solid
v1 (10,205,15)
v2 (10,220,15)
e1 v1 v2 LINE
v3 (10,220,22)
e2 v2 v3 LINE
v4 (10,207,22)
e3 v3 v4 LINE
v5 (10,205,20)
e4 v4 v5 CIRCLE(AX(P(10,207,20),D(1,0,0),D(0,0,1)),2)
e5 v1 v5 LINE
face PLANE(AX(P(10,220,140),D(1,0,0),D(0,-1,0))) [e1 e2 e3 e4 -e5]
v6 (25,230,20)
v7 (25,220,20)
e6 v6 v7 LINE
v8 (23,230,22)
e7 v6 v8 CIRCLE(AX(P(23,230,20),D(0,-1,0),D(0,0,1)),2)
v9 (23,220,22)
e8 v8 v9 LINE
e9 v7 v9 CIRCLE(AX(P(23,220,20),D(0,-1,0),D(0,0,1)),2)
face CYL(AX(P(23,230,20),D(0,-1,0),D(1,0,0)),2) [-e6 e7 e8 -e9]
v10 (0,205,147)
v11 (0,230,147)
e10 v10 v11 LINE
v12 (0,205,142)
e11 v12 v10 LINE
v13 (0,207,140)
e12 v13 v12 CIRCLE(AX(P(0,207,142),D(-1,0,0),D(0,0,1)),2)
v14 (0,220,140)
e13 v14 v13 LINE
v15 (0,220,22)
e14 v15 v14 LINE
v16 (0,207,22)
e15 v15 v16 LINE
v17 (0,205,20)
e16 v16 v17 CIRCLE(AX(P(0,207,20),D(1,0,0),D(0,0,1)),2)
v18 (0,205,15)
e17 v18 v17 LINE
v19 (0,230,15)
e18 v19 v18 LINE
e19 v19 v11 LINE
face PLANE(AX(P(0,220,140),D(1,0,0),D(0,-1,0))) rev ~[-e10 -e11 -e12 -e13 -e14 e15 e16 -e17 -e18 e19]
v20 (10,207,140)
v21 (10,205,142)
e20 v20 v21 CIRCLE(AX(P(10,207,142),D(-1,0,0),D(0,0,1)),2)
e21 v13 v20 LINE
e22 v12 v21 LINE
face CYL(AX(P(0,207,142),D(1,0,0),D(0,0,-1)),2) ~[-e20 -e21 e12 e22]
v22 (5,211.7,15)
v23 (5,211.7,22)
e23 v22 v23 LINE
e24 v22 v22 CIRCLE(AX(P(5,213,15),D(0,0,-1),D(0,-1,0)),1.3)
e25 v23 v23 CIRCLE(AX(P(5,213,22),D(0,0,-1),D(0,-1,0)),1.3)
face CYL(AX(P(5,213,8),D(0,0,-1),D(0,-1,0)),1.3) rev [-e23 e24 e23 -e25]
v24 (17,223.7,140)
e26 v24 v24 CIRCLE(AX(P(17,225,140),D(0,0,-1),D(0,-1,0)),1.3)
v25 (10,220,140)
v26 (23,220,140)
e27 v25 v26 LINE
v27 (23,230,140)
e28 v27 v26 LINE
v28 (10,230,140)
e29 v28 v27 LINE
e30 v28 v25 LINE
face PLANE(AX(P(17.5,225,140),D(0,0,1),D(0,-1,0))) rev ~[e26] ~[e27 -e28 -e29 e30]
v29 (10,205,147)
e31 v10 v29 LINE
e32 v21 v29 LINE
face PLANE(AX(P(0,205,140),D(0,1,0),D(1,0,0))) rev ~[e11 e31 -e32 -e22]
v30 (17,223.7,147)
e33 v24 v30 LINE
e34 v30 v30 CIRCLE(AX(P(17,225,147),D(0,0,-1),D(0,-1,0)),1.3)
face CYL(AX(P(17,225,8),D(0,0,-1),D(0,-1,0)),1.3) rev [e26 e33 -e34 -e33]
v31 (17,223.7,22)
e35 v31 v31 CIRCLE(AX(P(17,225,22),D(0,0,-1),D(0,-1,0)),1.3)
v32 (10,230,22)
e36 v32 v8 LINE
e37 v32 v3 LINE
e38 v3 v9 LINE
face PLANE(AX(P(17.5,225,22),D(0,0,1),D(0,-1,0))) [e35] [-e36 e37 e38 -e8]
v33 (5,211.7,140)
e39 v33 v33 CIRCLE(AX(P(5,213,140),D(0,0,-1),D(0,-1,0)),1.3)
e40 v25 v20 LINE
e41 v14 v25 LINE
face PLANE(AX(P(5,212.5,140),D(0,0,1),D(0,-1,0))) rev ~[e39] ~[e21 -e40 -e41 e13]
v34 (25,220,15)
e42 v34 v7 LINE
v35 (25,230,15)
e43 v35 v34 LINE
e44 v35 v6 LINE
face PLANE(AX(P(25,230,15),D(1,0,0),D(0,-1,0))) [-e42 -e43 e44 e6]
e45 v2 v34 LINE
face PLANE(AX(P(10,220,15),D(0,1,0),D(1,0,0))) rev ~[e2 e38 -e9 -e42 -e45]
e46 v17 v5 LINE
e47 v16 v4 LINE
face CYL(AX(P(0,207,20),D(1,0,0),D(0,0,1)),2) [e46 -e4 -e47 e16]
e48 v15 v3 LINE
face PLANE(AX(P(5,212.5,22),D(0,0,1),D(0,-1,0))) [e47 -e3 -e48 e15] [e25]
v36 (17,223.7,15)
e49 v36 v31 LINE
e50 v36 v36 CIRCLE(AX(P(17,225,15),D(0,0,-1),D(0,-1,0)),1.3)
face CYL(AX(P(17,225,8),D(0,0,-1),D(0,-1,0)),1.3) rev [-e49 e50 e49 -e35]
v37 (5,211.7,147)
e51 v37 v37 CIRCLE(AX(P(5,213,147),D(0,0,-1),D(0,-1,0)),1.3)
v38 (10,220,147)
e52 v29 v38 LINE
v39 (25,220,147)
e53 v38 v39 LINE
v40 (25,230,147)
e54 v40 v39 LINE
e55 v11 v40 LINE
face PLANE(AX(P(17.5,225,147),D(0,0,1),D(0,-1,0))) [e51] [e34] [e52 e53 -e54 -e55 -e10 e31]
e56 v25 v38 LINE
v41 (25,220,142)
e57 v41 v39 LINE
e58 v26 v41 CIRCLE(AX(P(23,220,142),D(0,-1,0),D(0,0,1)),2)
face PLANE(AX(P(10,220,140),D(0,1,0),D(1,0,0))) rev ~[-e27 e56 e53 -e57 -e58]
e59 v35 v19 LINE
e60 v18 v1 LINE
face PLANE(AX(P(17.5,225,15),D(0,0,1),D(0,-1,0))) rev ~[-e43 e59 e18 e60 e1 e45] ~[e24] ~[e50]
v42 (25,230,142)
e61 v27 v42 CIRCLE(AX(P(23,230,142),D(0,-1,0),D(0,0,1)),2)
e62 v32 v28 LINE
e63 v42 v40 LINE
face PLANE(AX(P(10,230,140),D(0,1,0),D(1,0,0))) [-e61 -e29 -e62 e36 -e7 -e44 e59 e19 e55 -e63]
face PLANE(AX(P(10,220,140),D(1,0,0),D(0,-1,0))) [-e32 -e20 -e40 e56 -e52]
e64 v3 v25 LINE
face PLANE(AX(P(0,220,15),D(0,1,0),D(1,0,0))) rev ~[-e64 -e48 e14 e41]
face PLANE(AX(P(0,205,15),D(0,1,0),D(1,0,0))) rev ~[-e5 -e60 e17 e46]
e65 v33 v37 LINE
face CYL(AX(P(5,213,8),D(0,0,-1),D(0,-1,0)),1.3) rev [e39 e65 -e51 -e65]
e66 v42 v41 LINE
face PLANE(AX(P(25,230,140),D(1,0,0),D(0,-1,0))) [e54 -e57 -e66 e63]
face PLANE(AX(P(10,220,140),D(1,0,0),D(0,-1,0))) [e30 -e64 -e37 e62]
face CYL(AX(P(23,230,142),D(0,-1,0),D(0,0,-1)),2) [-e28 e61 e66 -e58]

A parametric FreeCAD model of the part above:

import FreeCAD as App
import Part
import Sketcher
Q = App.Units.Quantity


def edges_at(feature, points):
    """Names of the edges that pass closest to the given points."""
    edges = feature.Shape.Edges
    near = lambda p: min(range(len(edges)), key=lambda i: edges[i].distToShape(Part.Vertex(*p))[0])
    return sorted({f"Edge{near(p) + 1}" for p in points})

doc = App.newDocument("Part")
body = doc.addObject("PartDesign::Body", "Body")

# Sketch on XY plane
sketch1 = doc.addObject("Sketcher::SketchObject", "Sketch")
body.addObject(sketch1)
sketch1.AttachmentSupport = (doc.XY_Plane, [""])
sketch1.MapMode = "FlatFace"
sketch1.AttachmentOffset = App.Placement(App.Vector(0, 0, 8), App.Rotation())
sketch1.addGeometry(Part.Circle(App.Vector(5, 17, 0), App.Vector(0, 0, 1), 1.3), False)
sketch1.addConstraint(Sketcher.Constraint("Diameter", 0, Q("2.6 mm")))
sketch1.addConstraint(Sketcher.Constraint("DistanceX", -1, 1, 0, 3, Q("5 mm")))
sketch1.addConstraint(Sketcher.Constraint("DistanceY", -1, 1, 0, 3, Q("17 mm")))
pad1 = doc.addObject("PartDesign::Pad", "Pad")
body.addObject(pad1)
pad1.Profile = sketch1
pad1.Length = 146
body2 = doc.addObject("PartDesign::Body", "Body001")

# Sketch on XY plane
sketch2 = doc.addObject("Sketcher::SketchObject", "Sketch001")
body2.addObject(sketch2)
sketch2.AttachmentSupport = (doc.getObject("XY_Plane001"), [""])
sketch2.MapMode = "FlatFace"
sketch2.AttachmentOffset = App.Placement(App.Vector(0, 0, 8), App.Rotation())
sketch2.addGeometry(Part.Circle(App.Vector(17, 5, 0), App.Vector(0, 0, 1), 1.3), False)
sketch2.addConstraint(Sketcher.Constraint("Diameter", 0, Q("2.6 mm")))
sketch2.addConstraint(Sketcher.Constraint("DistanceX", -1, 1, 0, 3, Q("17 mm")))
sketch2.addConstraint(Sketcher.Constraint("DistanceY", -1, 1, 0, 3, Q("5 mm")))
pad2 = doc.addObject("PartDesign::Pad", "Pad001")
body2.addObject(pad2)
pad2.Profile = sketch2
pad2.Length = 146
body3 = doc.addObject("PartDesign::Body", "Body002")

# Sketch on XY plane
sketch3 = doc.addObject("Sketcher::SketchObject", "Sketch002")
body3.addObject(sketch3)
sketch3.AttachmentSupport = (doc.getObject("XY_Plane002"), [""])
sketch3.MapMode = "FlatFace"
sketch3.AttachmentOffset = App.Placement(App.Vector(0, 0, 15), App.Rotation())
sketch3.addGeometry(Part.LineSegment(App.Vector(0, 10, 0), App.Vector(0, 0, 0)), False)
sketch3.addGeometry(Part.LineSegment(App.Vector(0, 0, 0), App.Vector(10, 0, 0)), False)
sketch3.addGeometry(Part.LineSegment(App.Vector(10, 0, 0), App.Vector(10, 10, 0)), False)
sketch3.addGeometry(Part.LineSegment(App.Vector(10, 10, 0), App.Vector(0, 10, 0)), False)
sketch3.addConstraint(Sketcher.Constraint("Coincident", 0, 2, 1, 1))
sketch3.addConstraint(Sketcher.Constraint("Coincident", 1, 2, 2, 1))
sketch3.addConstraint(Sketcher.Constraint("Coincident", 2, 2, 3, 1))
sketch3.addConstraint(Sketcher.Constraint("Coincident", 3, 2, 0, 1))
sketch3.addConstraint(Sketcher.Constraint("Vertical", 0))
sketch3.addConstraint(Sketcher.Constraint("Horizontal", 1))
sketch3.addConstraint(Sketcher.Constraint("Vertical", 2))
sketch3.addConstraint(Sketcher.Constraint("Horizontal", 3))
sketch3.addConstraint(Sketcher.Constraint("Coincident", 0, 2, -1, 1))
sketch3.addConstraint(Sketcher.Constraint("Equal", 3, 0))
sketch3.addConstraint(Sketcher.Constraint("DistanceX", 1, 1, 1, 2, Q("10 mm")))
pad3 = doc.addObject("PartDesign::Pad", "Pad002")
body3.addObject(pad3)
pad3.Profile = sketch3
pad3.Length = 132
body4 = doc.addObject("PartDesign::Body", "Body003")

# Sketch on XY plane
sketch4 = doc.addObject("Sketcher::SketchObject", "Sketch003")
body4.addObject(sketch4)
sketch4.AttachmentSupport = (doc.getObject("XY_Plane003"), [""])
sketch4.MapMode = "FlatFace"
sketch4.AttachmentOffset = App.Placement(App.Vector(0, 0, 140), App.Rotation())
sketch4.addGeometry(Part.LineSegment(App.Vector(10, 10, 0), App.Vector(10, 0, 0)), False)
sketch4.addGeometry(Part.LineSegment(App.Vector(10, 0, 0), App.Vector(25, 0, 0)), False)
sketch4.addGeometry(Part.LineSegment(App.Vector(25, 0, 0), App.Vector(25, 10, 0)), False)
sketch4.addGeometry(Part.LineSegment(App.Vector(25, 10, 0), App.Vector(10, 10, 0)), False)
sketch4.addConstraint(Sketcher.Constraint("Coincident", 0, 2, 1, 1))
sketch4.addConstraint(Sketcher.Constraint("Coincident", 1, 2, 2, 1))
sketch4.addConstraint(Sketcher.Constraint("Coincident", 2, 2, 3, 1))
sketch4.addConstraint(Sketcher.Constraint("Coincident", 3, 2, 0, 1))
sketch4.addConstraint(Sketcher.Constraint("Vertical", 0))
sketch4.addConstraint(Sketcher.Constraint("Horizontal", 1))
sketch4.addConstraint(Sketcher.Constraint("Vertical", 2))
sketch4.addConstraint(Sketcher.Constraint("Horizontal", 3))
sketch4.addConstraint(Sketcher.Constraint("PointOnObject", 0, 2, -1))
sketch4.addConstraint(Sketcher.Constraint("DistanceX", 1, 1, 1, 2, Q("15 mm")))
sketch4.addConstraint(Sketcher.Constraint("DistanceY", 0, 2, 0, 1, Q("10 mm")))
sketch4.addConstraint(Sketcher.Constraint("DistanceX", -1, 1, 0, 2, Q("10 mm")))
pad4 = doc.addObject("PartDesign::Pad", "Pad003")
body4.addObject(pad4)
pad4.Profile = sketch4
pad4.Length = 7
body5 = doc.addObject("PartDesign::Body", "Body004")

# Sketch on XY plane
sketch5 = doc.addObject("Sketcher::SketchObject", "Sketch004")
body5.addObject(sketch5)
sketch5.AttachmentSupport = (doc.getObject("XY_Plane004"), [""])
sketch5.MapMode = "FlatFace"
sketch5.AttachmentOffset = App.Placement(App.Vector(0, 0, 15), App.Rotation())
sketch5.addGeometry(Part.LineSegment(App.Vector(0, 25, 0), App.Vector(0, 10, 0)), False)
sketch5.addGeometry(Part.LineSegment(App.Vector(0, 10, 0), App.Vector(10, 10, 0)), False)
sketch5.addGeometry(Part.LineSegment(App.Vector(10, 10, 0), App.Vector(10, 25, 0)), False)
sketch5.addGeometry(Part.LineSegment(App.Vector(10, 25, 0), App.Vector(0, 25, 0)), False)
sketch5.addConstraint(Sketcher.Constraint("Coincident", 0, 2, 1, 1))
sketch5.addConstraint(Sketcher.Constraint("Coincident", 1, 2, 2, 1))
sketch5.addConstraint(Sketcher.Constraint("Coincident", 2, 2, 3, 1))
sketch5.addConstraint(Sketcher.Constraint("Coincident", 3, 2, 0, 1))
sketch5.addConstraint(Sketcher.Constraint("Vertical", 0))
sketch5.addConstraint(Sketcher.Constraint("Horizontal", 1))
sketch5.addConstraint(Sketcher.Constraint("Vertical", 2))
sketch5.addConstraint(Sketcher.Constraint("Horizontal", 3))
sketch5.addConstraint(Sketcher.Constraint("PointOnObject", 0, 2, -2))
sketch5.addConstraint(Sketcher.Constraint("DistanceX", 1, 1, 1, 2, Q("10 mm")))
sketch5.addConstraint(Sketcher.Constraint("DistanceY", 0, 2, 0, 1, Q("15 mm")))
sketch5.addConstraint(Sketcher.Constraint("DistanceY", -1, 1, 0, 2, Q("10 mm")))
pad5 = doc.addObject("PartDesign::Pad", "Pad004")
body5.addObject(pad5)
pad5.Profile = sketch5
pad5.Length = 7
body6 = doc.addObject("PartDesign::Body", "Body005")

# Sketch on XY plane
sketch6 = doc.addObject("Sketcher::SketchObject", "Sketch005")
body6.addObject(sketch6)
sketch6.AttachmentSupport = (doc.getObject("XY_Plane005"), [""])
sketch6.MapMode = "FlatFace"
sketch6.AttachmentOffset = App.Placement(App.Vector(0, 0, 140), App.Rotation())
sketch6.addGeometry(Part.LineSegment(App.Vector(0, 25, 0), App.Vector(0, 10, 0)), False)
sketch6.addGeometry(Part.LineSegment(App.Vector(0, 10, 0), App.Vector(10, 10, 0)), False)
sketch6.addGeometry(Part.LineSegment(App.Vector(10, 10, 0), App.Vector(10, 25, 0)), False)
sketch6.addGeometry(Part.LineSegment(App.Vector(10, 25, 0), App.Vector(0, 25, 0)), False)
sketch6.addConstraint(Sketcher.Constraint("Coincident", 0, 2, 1, 1))
sketch6.addConstraint(Sketcher.Constraint("Coincident", 1, 2, 2, 1))
sketch6.addConstraint(Sketcher.Constraint("Coincident", 2, 2, 3, 1))
sketch6.addConstraint(Sketcher.Constraint("Coincident", 3, 2, 0, 1))
sketch6.addConstraint(Sketcher.Constraint("Vertical", 0))
sketch6.addConstraint(Sketcher.Constraint("Horizontal", 1))
sketch6.addConstraint(Sketcher.Constraint("Vertical", 2))
sketch6.addConstraint(Sketcher.Constraint("Horizontal", 3))
sketch6.addConstraint(Sketcher.Constraint("PointOnObject", 0, 2, -2))
sketch6.addConstraint(Sketcher.Constraint("DistanceX", 1, 1, 1, 2, Q("10 mm")))
sketch6.addConstraint(Sketcher.Constraint("DistanceY", 0, 2, 0, 1, Q("15 mm")))
sketch6.addConstraint(Sketcher.Constraint("DistanceY", -1, 1, 0, 2, Q("10 mm")))
pad6 = doc.addObject("PartDesign::Pad", "Pad005")
body6.addObject(pad6)
pad6.Profile = sketch6
pad6.Length = 7
body7 = doc.addObject("PartDesign::Body", "Body006")

# Sketch on XY plane
sketch7 = doc.addObject("Sketcher::SketchObject", "Sketch006")
body7.addObject(sketch7)
sketch7.AttachmentSupport = (doc.getObject("XY_Plane006"), [""])
sketch7.MapMode = "FlatFace"
sketch7.AttachmentOffset = App.Placement(App.Vector(0, 0, 15), App.Rotation())
sketch7.addGeometry(Part.LineSegment(App.Vector(10, 10, 0), App.Vector(10, 0, 0)), False)
sketch7.addGeometry(Part.LineSegment(App.Vector(10, 0, 0), App.Vector(25, 0, 0)), False)
sketch7.addGeometry(Part.LineSegment(App.Vector(25, 0, 0), App.Vector(25, 10, 0)), False)
sketch7.addGeometry(Part.LineSegment(App.Vector(25, 10, 0), App.Vector(10, 10, 0)), False)
sketch7.addConstraint(Sketcher.Constraint("Coincident", 0, 2, 1, 1))
sketch7.addConstraint(Sketcher.Constraint("Coincident", 1, 2, 2, 1))
sketch7.addConstraint(Sketcher.Constraint("Coincident", 2, 2, 3, 1))
sketch7.addConstraint(Sketcher.Constraint("Coincident", 3, 2, 0, 1))
sketch7.addConstraint(Sketcher.Constraint("Vertical", 0))
sketch7.addConstraint(Sketcher.Constraint("Horizontal", 1))
sketch7.addConstraint(Sketcher.Constraint("Vertical", 2))
sketch7.addConstraint(Sketcher.Constraint("Horizontal", 3))
sketch7.addConstraint(Sketcher.Constraint("PointOnObject", 0, 2, -1))
sketch7.addConstraint(Sketcher.Constraint("DistanceX", 1, 1, 1, 2, Q("15 mm")))
sketch7.addConstraint(Sketcher.Constraint("DistanceY", 0, 2, 0, 1, Q("10 mm")))
sketch7.addConstraint(Sketcher.Constraint("DistanceX", -1, 1, 0, 2, Q("10 mm")))
pad7 = doc.addObject("PartDesign::Pad", "Pad006")
body7.addObject(pad7)
pad7.Profile = sketch7
pad7.Length = 7
doc.recompute()

boolean = doc.addObject("PartDesign::Boolean", "Boolean")
body7.addObject(boolean)
boolean.Type = "Fuse"
boolean.addObjects([body3])
doc.recompute()

boolean2 = doc.addObject("PartDesign::Boolean", "Boolean001")
body7.addObject(boolean2)
boolean2.Type = "Fuse"
boolean2.addObjects([body4])
doc.recompute()

boolean3 = doc.addObject("PartDesign::Boolean", "Boolean002")
body7.addObject(boolean3)
boolean3.Type = "Fuse"
boolean3.addObjects([body5])
doc.recompute()

boolean4 = doc.addObject("PartDesign::Boolean", "Boolean003")
body7.addObject(boolean4)
boolean4.Type = "Fuse"
boolean4.addObjects([body6])
doc.recompute()

fillet = doc.addObject("PartDesign::Fillet", "Fillet")
body7.addObject(fillet)
fillet.Base = (boolean4, edges_at(boolean4, [
    (25, 5, 22),
    (25, 5, 140),
    (5, 25, 22),
    (5, 25, 140),
]))
fillet.Radius = 2
doc.recompute()

boolean5 = doc.addObject("PartDesign::Boolean", "Boolean004")
body7.addObject(boolean5)
boolean5.Type = "Cut"
boolean5.addObjects([body2])
doc.recompute()

boolean6 = doc.addObject("PartDesign::Boolean", "Boolean005")
body7.addObject(boolean6)
boolean6.Type = "Cut"
boolean6.addObjects([body])
body8 = doc.addObject("PartDesign::Body", "Body007")
doc.recompute()

body7.Placement = App.Placement(App.Vector(0, 230, 0), App.Rotation(App.Vector(0, 0, -1), 90))
boolean7 = doc.addObject("PartDesign::Boolean", "Boolean006")
body8.addObject(boolean7)
boolean7.Type = "Fuse"
boolean7.addObjects([body7])

doc.recompute()
